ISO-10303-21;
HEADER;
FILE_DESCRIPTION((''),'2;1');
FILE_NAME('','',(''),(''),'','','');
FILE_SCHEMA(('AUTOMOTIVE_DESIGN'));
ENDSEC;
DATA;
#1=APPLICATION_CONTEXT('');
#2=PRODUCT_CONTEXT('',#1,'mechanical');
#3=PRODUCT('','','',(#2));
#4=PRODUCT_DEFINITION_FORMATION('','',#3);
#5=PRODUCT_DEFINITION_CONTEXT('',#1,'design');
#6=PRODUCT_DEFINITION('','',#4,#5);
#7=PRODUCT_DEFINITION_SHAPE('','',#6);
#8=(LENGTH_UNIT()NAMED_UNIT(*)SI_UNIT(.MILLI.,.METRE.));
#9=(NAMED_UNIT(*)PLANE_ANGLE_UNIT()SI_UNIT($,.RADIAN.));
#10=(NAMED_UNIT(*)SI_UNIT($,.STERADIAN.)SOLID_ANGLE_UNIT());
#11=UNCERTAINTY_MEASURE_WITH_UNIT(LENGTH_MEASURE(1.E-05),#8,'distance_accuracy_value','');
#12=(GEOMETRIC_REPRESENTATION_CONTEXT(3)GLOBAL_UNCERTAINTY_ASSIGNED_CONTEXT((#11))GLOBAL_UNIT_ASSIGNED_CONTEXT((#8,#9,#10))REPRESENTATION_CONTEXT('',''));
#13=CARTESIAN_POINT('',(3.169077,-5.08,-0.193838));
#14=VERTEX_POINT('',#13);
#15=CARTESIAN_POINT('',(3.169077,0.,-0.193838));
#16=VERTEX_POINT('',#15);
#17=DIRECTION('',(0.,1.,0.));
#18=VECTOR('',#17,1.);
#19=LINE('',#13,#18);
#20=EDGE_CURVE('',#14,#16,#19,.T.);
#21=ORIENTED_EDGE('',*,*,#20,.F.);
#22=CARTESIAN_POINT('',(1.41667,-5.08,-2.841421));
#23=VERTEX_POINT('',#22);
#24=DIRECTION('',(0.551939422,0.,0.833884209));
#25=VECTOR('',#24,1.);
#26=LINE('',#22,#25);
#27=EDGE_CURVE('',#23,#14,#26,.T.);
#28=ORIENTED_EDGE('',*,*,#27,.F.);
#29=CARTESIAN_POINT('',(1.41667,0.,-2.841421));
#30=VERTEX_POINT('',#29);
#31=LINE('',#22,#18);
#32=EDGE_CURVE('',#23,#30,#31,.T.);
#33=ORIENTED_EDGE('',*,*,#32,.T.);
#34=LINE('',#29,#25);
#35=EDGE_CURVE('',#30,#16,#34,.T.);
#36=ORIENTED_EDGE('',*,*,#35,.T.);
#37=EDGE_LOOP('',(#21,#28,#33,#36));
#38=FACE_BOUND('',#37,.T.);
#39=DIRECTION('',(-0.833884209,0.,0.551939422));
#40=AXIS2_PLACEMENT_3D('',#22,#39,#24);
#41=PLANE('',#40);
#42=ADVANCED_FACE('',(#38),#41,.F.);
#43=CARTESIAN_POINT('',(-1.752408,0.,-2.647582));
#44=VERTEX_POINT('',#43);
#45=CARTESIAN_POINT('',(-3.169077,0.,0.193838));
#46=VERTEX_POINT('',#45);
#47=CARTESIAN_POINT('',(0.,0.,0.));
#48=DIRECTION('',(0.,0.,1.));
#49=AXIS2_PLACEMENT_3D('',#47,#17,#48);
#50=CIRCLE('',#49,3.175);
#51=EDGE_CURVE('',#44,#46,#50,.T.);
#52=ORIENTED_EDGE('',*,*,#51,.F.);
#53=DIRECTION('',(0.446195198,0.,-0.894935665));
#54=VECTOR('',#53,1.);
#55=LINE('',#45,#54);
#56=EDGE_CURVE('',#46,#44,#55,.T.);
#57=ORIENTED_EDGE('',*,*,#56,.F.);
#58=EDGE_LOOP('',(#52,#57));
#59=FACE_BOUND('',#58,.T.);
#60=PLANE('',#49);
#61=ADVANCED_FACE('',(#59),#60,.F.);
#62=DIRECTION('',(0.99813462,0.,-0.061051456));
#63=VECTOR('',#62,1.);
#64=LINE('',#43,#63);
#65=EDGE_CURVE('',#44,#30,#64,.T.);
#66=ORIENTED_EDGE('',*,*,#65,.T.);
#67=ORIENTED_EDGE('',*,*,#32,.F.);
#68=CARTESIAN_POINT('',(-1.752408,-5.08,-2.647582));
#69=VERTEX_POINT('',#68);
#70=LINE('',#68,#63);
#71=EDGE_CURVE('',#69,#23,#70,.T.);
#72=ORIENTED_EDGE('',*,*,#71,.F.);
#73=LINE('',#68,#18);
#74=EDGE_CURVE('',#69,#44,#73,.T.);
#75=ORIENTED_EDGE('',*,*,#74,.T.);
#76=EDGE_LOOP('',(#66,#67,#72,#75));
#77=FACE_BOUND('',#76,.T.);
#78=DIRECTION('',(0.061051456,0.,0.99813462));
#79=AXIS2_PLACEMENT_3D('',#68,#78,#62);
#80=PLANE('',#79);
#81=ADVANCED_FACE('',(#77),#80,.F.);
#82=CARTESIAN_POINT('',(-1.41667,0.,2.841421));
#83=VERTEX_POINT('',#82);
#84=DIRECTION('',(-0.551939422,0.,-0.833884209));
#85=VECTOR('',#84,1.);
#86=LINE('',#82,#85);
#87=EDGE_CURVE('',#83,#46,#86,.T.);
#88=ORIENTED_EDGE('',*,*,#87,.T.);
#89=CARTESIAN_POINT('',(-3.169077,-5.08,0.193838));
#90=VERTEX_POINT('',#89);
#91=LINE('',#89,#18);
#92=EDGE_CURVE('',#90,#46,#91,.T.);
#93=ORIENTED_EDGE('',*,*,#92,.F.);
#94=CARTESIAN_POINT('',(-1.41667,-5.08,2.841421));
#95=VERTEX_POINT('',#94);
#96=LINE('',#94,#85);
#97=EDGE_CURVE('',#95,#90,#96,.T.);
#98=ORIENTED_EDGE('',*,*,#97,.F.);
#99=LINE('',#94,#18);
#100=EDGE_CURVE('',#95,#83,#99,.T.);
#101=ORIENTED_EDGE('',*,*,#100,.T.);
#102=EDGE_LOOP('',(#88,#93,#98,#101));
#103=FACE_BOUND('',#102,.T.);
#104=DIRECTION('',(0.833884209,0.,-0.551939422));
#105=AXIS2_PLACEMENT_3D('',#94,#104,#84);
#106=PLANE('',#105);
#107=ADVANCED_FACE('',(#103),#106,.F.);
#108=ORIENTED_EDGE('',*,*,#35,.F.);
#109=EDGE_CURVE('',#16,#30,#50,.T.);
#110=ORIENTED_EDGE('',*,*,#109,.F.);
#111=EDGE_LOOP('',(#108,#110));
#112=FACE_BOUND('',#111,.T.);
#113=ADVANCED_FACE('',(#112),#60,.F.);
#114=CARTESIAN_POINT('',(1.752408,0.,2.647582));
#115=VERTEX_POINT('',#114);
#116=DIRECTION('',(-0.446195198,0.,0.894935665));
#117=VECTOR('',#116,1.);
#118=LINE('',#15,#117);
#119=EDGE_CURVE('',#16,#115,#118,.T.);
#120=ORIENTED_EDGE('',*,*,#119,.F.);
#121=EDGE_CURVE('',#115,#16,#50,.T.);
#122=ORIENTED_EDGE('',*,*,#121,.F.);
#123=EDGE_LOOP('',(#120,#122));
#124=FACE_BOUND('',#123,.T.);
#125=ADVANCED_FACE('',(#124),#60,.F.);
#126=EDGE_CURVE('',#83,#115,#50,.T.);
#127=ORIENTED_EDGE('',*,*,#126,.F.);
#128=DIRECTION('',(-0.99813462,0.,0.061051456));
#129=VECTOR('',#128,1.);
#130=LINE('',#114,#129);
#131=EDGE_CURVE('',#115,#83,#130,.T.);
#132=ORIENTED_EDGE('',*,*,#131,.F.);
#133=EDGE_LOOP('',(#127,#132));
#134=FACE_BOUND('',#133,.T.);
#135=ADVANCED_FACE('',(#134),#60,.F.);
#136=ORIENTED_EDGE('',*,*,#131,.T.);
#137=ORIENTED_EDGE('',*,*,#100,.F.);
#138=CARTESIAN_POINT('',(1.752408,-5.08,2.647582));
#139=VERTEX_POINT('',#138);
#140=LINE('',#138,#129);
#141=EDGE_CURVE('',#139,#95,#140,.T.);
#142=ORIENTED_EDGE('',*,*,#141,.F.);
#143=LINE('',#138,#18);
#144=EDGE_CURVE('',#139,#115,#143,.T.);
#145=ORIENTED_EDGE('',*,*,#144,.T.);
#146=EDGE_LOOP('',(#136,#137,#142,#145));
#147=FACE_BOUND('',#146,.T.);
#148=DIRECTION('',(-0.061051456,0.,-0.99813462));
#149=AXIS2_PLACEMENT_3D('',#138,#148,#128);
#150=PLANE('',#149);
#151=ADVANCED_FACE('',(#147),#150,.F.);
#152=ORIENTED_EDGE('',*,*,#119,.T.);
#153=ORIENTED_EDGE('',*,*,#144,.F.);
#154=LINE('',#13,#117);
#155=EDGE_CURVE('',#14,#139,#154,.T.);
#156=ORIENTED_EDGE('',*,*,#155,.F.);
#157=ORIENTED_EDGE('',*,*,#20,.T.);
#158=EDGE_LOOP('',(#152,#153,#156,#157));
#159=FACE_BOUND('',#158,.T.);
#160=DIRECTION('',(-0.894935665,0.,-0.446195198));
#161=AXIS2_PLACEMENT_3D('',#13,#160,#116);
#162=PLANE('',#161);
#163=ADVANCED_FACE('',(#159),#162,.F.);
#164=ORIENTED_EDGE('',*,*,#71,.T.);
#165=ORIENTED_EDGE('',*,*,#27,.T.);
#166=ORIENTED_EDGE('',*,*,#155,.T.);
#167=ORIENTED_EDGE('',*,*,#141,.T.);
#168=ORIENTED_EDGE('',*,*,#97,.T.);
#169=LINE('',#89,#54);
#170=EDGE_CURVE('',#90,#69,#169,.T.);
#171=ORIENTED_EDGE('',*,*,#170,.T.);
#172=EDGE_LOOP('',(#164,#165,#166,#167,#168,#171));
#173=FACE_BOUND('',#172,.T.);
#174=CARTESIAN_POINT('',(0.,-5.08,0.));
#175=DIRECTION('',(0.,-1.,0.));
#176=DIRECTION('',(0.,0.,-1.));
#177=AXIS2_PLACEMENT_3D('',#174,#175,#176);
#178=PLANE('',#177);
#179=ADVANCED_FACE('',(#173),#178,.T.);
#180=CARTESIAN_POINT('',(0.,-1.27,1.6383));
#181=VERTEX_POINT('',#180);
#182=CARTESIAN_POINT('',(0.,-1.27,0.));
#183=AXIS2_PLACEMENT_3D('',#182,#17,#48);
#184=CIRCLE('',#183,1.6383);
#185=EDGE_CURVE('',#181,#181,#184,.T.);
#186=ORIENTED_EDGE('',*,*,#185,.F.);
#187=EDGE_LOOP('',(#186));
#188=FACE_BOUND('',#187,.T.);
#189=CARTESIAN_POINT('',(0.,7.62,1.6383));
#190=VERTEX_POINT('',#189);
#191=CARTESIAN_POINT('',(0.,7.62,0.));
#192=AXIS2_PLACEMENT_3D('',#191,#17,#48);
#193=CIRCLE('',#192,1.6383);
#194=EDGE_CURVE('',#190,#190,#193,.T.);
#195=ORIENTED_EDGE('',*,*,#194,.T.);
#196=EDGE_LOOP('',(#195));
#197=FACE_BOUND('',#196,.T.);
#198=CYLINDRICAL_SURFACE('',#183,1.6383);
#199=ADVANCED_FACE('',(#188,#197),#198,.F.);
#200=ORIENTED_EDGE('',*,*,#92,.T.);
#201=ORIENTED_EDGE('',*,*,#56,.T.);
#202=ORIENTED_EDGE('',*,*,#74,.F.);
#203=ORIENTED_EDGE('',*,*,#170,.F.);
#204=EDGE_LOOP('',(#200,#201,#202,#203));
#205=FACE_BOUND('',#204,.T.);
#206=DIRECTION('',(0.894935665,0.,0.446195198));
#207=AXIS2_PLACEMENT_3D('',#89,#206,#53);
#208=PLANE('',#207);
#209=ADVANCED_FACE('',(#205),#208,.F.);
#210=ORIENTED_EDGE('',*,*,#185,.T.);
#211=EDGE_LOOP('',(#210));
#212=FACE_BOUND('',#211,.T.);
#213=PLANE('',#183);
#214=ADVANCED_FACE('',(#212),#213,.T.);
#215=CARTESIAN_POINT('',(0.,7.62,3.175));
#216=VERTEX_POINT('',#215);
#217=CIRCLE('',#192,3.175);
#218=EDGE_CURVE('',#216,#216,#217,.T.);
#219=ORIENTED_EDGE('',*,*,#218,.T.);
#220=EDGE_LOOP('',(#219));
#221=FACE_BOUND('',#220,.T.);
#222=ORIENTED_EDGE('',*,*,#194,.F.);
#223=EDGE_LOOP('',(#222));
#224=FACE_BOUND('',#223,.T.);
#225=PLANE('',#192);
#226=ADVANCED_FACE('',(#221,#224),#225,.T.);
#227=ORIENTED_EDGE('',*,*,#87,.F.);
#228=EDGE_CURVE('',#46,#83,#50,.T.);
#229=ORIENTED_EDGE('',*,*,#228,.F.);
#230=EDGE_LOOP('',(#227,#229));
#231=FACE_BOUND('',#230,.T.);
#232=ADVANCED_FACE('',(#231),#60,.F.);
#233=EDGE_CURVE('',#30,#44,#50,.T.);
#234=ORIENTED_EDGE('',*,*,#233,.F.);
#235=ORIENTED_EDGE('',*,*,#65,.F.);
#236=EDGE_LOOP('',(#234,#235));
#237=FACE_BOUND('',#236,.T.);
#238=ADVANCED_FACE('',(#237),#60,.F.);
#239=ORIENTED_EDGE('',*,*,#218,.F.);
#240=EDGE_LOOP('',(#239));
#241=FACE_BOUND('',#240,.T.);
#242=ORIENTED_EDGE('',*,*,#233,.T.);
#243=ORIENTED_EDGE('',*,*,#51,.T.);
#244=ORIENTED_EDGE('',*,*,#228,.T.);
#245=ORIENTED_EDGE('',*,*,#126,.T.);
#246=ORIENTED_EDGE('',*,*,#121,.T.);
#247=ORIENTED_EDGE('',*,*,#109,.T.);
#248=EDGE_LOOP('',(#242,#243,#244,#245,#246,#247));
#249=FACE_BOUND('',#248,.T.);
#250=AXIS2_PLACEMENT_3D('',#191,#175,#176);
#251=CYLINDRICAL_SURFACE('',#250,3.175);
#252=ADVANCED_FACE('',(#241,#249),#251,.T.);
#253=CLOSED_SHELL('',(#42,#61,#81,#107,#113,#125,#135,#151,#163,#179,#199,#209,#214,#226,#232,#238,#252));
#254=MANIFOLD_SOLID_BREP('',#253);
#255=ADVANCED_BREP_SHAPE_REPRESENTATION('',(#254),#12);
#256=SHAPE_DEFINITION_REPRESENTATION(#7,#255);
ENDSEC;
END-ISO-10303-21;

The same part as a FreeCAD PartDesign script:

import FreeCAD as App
import Part
import Sketcher

V = App.Vector
Q = App.Units.Quantity


def add_polygon(sketch, points):
    """Adds a closed chain of lines whose ends are joined by coincident constraints."""
    first, n = sketch.GeometryCount, len(points)
    for a, b in zip(points, points[1:] + points[:1]):
        sketch.addGeometry(Part.LineSegment(App.Vector(*a, 0), App.Vector(*b, 0)), False)
    for i in range(n):
        sketch.addConstraint(Sketcher.Constraint("Coincident", first + i, 2, first + (i + 1) % n, 1))

doc = App.newDocument("Part")
params = doc.addObject("Spreadsheet::Sheet", "Params")
for row, (alias, value) in enumerate([
    ("sketch1_diameter", "0.25 in"),
    ("pad1_length", "0.3 in"),
    ("sketch2_length", "0.125 in"),
    ("pad2_length", "0.2 in"),
    ("sketch3_diameter", "0.129 in"),
    ("pocket1_length", "0.35 in"),
], start=1):
    params.set(f"A{row}", alias)
    params.set(f"B{row}", "=" + value)
    params.setAlias(f"B{row}", alias)

body = doc.addObject("PartDesign::Body", "Body")

# Sketch on XZ plane
sketch1 = body.newObject("Sketcher::SketchObject", "Sketch")
sketch1.AttachmentSupport = (doc.getObject("XZ_Plane"), [""])
sketch1.MapMode = "FlatFace"
sketch1.addGeometry(Part.Circle(V(0, 0, 0), V(0, 0, 1), 3.175), False)
sketch1.addConstraint(Sketcher.Constraint("Coincident", 0, 3, -1, 1))
sketch1.addConstraint(Sketcher.Constraint("Diameter", 0, Q("0.25 in")))
sketch1.setExpression("Constraints[1]", "Params.sketch1_diameter")
pad1 = body.newObject("PartDesign::Pad", "Pad")
pad1.Profile = sketch1
pad1.setExpression("Length", "Params.pad1_length")
pad1.Reversed = True

# Sketch on XZ plane
sketch2 = body.newObject("Sketcher::SketchObject", "Sketch001")
sketch2.AttachmentSupport = (doc.getObject("XZ_Plane"), [""])
sketch2.MapMode = "FlatFace"
add_polygon(sketch2, [(-1.41667, 2.841421), (-3.169077, 0.193838), (-1.752408, -2.647582), (1.41667, -2.841421), (3.169077, -0.193838), (1.752408, 2.647582)])  # lines 0-5
sketch2.addConstraint(Sketcher.Constraint("Symmetric", 0, 2, 3, 2, -1, 1))
sketch2.addConstraint(Sketcher.Constraint("Symmetric", 1, 2, 4, 2, -1, 1))
sketch2.addConstraint(Sketcher.Constraint("Symmetric", 2, 2, 5, 2, -1, 1))
sketch2.addConstraint(Sketcher.Constraint("Equal", 0, 1))
sketch2.addConstraint(Sketcher.Constraint("Equal", 1, 2))
sketch2.addConstraint(Sketcher.Constraint("Distance", 0, Q("0.125 in")))
sketch2.addConstraint(Sketcher.Constraint("DistanceY", -1, 1, 0, 2, 0.193838))
sketch2.addConstraint(Sketcher.Constraint("DistanceX", -1, 1, 2, 2, 1.41667))
sketch2.addConstraint(Sketcher.Constraint("DistanceY", 2, 2, -1, 1, 2.841421))
sketch2.setExpression("Constraints[11]", "Params.sketch2_length")
pad2 = body.newObject("PartDesign::Pad", "Pad001")
pad2.Profile = sketch2
pad2.setExpression("Length", "Params.pad2_length")

# Sketch on XZ plane
sketch3 = body.newObject("Sketcher::SketchObject", "Sketch002")
sketch3.AttachmentSupport = (doc.getObject("XZ_Plane"), [""])
sketch3.MapMode = "FlatFace"
sketch3.AttachmentOffset = App.Placement(V(0, 0, -0.3 * 25.4), App.Rotation())
sketch3.addGeometry(Part.Circle(V(0, 0, 0), V(0, 0, 1), 1.6383), False)
sketch3.addConstraint(Sketcher.Constraint("Coincident", 0, 3, -1, 1))
sketch3.addConstraint(Sketcher.Constraint("Diameter", 0, Q("0.129 in")))
sketch3.setExpression("Constraints[1]", "Params.sketch3_diameter")
pocket1 = body.newObject("PartDesign::Pocket", "Pocket")
pocket1.Profile = sketch3
pocket1.setExpression("Length", "Params.pocket1_length")
pocket1.Reversed = True

doc.recompute()
